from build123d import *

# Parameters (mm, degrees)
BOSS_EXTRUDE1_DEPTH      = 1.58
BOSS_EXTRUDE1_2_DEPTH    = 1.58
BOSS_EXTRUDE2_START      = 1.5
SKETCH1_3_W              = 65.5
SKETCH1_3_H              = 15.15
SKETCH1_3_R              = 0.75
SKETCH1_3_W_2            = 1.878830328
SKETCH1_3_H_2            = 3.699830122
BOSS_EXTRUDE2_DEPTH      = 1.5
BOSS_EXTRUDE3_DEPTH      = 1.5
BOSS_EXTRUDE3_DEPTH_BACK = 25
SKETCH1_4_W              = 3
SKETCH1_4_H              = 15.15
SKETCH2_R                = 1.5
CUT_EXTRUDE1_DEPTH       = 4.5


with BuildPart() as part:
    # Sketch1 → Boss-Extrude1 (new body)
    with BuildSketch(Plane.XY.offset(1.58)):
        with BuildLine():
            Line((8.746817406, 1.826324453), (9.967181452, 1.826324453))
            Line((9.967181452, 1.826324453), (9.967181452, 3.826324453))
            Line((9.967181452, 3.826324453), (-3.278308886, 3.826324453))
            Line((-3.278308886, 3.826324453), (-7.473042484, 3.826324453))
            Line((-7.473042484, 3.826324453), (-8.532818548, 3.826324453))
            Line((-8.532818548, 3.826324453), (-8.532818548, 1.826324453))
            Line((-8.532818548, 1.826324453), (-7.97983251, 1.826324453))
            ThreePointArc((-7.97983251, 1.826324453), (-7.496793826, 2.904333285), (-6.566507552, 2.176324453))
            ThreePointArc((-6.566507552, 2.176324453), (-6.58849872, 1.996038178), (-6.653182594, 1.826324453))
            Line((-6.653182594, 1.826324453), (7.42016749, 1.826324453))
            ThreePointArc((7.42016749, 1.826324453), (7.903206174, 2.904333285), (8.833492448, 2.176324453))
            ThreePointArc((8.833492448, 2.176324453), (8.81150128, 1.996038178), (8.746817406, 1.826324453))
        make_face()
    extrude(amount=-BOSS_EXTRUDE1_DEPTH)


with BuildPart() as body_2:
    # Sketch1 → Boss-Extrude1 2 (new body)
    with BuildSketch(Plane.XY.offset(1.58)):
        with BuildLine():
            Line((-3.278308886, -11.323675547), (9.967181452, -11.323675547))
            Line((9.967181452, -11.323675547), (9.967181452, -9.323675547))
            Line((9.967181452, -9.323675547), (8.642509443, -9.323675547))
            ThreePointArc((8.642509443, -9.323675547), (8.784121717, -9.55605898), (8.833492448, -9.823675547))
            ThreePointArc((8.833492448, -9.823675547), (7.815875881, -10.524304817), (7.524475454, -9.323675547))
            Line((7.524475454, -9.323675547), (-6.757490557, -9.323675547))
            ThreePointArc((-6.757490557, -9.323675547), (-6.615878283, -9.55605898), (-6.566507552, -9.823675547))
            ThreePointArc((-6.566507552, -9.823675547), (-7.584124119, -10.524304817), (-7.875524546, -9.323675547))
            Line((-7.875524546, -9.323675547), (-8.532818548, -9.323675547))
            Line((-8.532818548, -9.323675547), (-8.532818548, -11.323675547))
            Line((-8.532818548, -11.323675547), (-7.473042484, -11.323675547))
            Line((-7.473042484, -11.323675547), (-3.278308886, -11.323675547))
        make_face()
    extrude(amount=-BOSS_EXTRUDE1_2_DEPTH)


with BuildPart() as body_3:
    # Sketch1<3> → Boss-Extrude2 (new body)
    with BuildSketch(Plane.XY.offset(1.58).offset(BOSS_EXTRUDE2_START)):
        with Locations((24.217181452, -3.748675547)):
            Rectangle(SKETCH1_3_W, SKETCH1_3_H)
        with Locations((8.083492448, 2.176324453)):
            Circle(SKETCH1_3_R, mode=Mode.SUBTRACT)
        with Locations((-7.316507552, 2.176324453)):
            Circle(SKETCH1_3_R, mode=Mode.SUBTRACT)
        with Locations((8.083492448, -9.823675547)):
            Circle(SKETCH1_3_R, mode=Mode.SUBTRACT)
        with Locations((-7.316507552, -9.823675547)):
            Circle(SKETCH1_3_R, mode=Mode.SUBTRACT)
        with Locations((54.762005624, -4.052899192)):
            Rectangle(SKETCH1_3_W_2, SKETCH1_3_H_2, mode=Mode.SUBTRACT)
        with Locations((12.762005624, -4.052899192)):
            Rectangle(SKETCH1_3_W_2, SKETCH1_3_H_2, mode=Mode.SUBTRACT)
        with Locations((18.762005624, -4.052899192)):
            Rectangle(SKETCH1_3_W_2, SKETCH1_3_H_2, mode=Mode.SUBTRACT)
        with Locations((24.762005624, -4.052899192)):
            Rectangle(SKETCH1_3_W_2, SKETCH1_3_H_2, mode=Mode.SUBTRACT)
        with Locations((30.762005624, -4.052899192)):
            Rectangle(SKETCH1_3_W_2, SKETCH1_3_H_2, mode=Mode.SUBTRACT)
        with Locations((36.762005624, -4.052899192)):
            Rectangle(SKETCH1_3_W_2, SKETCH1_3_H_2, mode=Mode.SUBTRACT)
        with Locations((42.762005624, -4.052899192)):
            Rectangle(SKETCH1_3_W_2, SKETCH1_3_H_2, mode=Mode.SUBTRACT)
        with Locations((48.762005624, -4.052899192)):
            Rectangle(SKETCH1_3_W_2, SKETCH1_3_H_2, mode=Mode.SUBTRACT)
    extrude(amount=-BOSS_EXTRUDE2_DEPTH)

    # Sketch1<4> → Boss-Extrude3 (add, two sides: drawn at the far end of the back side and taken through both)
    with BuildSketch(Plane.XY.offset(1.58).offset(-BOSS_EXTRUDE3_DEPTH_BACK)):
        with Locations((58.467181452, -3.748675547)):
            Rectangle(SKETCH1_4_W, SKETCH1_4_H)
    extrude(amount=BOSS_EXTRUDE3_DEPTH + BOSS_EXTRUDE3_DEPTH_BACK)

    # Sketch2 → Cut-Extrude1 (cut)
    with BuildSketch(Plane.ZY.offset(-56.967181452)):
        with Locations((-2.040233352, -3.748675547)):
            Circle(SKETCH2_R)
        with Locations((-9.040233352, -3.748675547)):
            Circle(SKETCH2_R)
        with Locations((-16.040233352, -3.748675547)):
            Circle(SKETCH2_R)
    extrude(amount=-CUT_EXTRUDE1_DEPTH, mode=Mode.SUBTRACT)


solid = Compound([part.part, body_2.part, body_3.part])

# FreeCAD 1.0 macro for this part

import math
import FreeCAD as App
import Part
import Sketcher
Q = App.Units.Quantity

doc = App.newDocument("Part")
body = doc.addObject("PartDesign::Body", "Body")

# Sketch on XY plane
sketch1 = doc.addObject("Sketcher::SketchObject", "Sketch")
body.addObject(sketch1)
sketch1.AttachmentSupport = (doc.XY_Plane, [""])
sketch1.MapMode = "FlatFace"
sketch1.AttachmentOffset = App.Placement(App.Vector(0, 0, 1.58), App.Rotation())
sketch1.addGeometry([
    Part.LineSegment(App.Vector(8.75, 1.83, 0), App.Vector(9.97, 1.83, 0)),  # 0
    Part.LineSegment(App.Vector(9.97, 1.83, 0), App.Vector(9.97, 3.83, 0)),  # 1
    Part.LineSegment(App.Vector(9.97, 3.83, 0), App.Vector(-8.53, 3.83, 0)),  # 2
    Part.LineSegment(App.Vector(-8.53, 3.83, 0), App.Vector(-8.53, 1.83, 0)),  # 3
    Part.LineSegment(App.Vector(-8.53, 1.83, 0), App.Vector(-7.98, 1.83, 0)),  # 4
    Part.ArcOfCircle(Part.Circle(App.Vector(-7.32, 2.18, 0), App.Vector(0, 0, 1), 0.75), math.radians(0), math.radians(208)),  # 5
    Part.ArcOfCircle(Part.Circle(App.Vector(-7.32, 2.18, 0), App.Vector(0, 0, 1), 0.75), math.radians(-28), math.radians(0)),  # 6
    Part.LineSegment(App.Vector(-6.65, 1.83, 0), App.Vector(7.42, 1.83, 0)),  # 7
    Part.ArcOfCircle(Part.Circle(App.Vector(8.08, 2.18, 0), App.Vector(0, 0, 1), 0.75), math.radians(0), math.radians(208)),  # 8
    Part.ArcOfCircle(Part.Circle(App.Vector(8.08, 2.18, 0), App.Vector(0, 0, 1), 0.75), math.radians(-28), math.radians(0)),  # 9
], False)
sketch1.addConstraint([
    Sketcher.Constraint("Coincident", 0, 2, 1, 1),
    Sketcher.Constraint("Coincident", 1, 2, 2, 1),
    Sketcher.Constraint("Coincident", 2, 2, 3, 1),
    Sketcher.Constraint("Coincident", 3, 2, 4, 1),
    Sketcher.Constraint("Coincident", 4, 2, 5, 2),
    Sketcher.Constraint("Tangent", 5, 1, 6, 2),
    Sketcher.Constraint("Coincident", 6, 1, 7, 1),
    Sketcher.Constraint("Coincident", 7, 2, 8, 2),
    Sketcher.Constraint("Tangent", 8, 1, 9, 2),
    Sketcher.Constraint("Coincident", 9, 1, 0, 1),
    Sketcher.Constraint("Horizontal", 0),
    Sketcher.Constraint("Vertical", 1),
    Sketcher.Constraint("Horizontal", 2),
    Sketcher.Constraint("Vertical", 3),
    Sketcher.Constraint("Horizontal", 4),
    Sketcher.Constraint("Horizontal", 7),
    Sketcher.Constraint("Equal", 5, 6),
    Sketcher.Constraint("Equal", 6, 8),
    Sketcher.Constraint("Equal", 8, 9),
    Sketcher.Constraint("Horizontal", 6, 3, 8, 3),
    Sketcher.Constraint("Horizontal", 0, 2, 3, 2),
    Sketcher.Constraint("Horizontal", 9, 3, 5, 1),
    Sketcher.Constraint("Horizontal", 4, 2, 6, 1),
    Sketcher.Constraint("Horizontal", 5, 1, 8, 1),
    Sketcher.Constraint("DistanceY", 1, 1, 1, 2, Q("2 mm")),
    Sketcher.Constraint("Radius", 5, Q("0.75 mm")),
    Sketcher.Constraint("DistanceX", 2, 2, 2, 1, Q("18.5 mm")),
    Sketcher.Constraint("DistanceX", 6, 3, 8, 3, Q("15.4 mm")),
    Sketcher.Constraint("DistanceY", 0, 2, 9, 3, Q("0.35 mm")),
    Sketcher.Constraint("DistanceX", 0, 1, 0, 2, Q("1.220364 mm")),
    Sketcher.Constraint("DistanceX", -1, 1, 0, 2, Q("9.967181 mm")),
    Sketcher.Constraint("DistanceY", -1, 1, 5, 3, Q("2.176324 mm")),
])
pad1 = doc.addObject("PartDesign::Pad", "Pad")
body.addObject(pad1)
pad1.Profile = sketch1
pad1.Length = 1.58
pad1.Reversed = True
body2 = doc.addObject("PartDesign::Body", "Body001")

# Sketch on XY plane
sketch2 = doc.addObject("Sketcher::SketchObject", "Sketch001")
body2.addObject(sketch2)
sketch2.AttachmentSupport = (doc.getObject("XY_Plane001"), [""])
sketch2.MapMode = "FlatFace"
sketch2.AttachmentOffset = App.Placement(App.Vector(0, 0, 1.58), App.Rotation())
sketch2.addGeometry([
    Part.LineSegment(App.Vector(10, -11.3, 0), App.Vector(10, -9.3, 0)),  # 0
    Part.LineSegment(App.Vector(10, -9.3, 0), App.Vector(8.6, -9.3, 0)),  # 1
    Part.ArcOfCircle(Part.Circle(App.Vector(8.1, -9.8, 0), App.Vector(0, 0, 1), 0.8), math.radians(0), math.radians(42)),  # 2
    Part.ArcOfCircle(Part.Circle(App.Vector(8.1, -9.8, 0), App.Vector(0, 0, 1), 0.8), math.radians(138), math.radians(360)),  # 3
    Part.LineSegment(App.Vector(7.5, -9.3, 0), App.Vector(-6.8, -9.3, 0)),  # 4
    Part.ArcOfCircle(Part.Circle(App.Vector(-7.3, -9.8, 0), App.Vector(0, 0, 1), 0.8), math.radians(0), math.radians(42)),  # 5
    Part.ArcOfCircle(Part.Circle(App.Vector(-7.3, -9.8, 0), App.Vector(0, 0, 1), 0.8), math.radians(138), math.radians(360)),  # 6
    Part.LineSegment(App.Vector(-7.9, -9.3, 0), App.Vector(-8.5, -9.3, 0)),  # 7
    Part.LineSegment(App.Vector(-8.5, -9.3, 0), App.Vector(-8.5, -11.3, 0)),  # 8
    Part.LineSegment(App.Vector(-8.5, -11.3, 0), App.Vector(10, -11.3, 0)),  # 9
], False)
sketch2.addConstraint([
    Sketcher.Constraint("Coincident", 0, 2, 1, 1),
    Sketcher.Constraint("Coincident", 1, 2, 2, 2),
    Sketcher.Constraint("Tangent", 2, 1, 3, 2),
    Sketcher.Constraint("Coincident", 3, 1, 4, 1),
    Sketcher.Constraint("Coincident", 4, 2, 5, 2),
    Sketcher.Constraint("Tangent", 5, 1, 6, 2),
    Sketcher.Constraint("Coincident", 6, 1, 7, 1),
    Sketcher.Constraint("Coincident", 7, 2, 8, 1),
    Sketcher.Constraint("Coincident", 8, 2, 9, 1),
    Sketcher.Constraint("Coincident", 9, 2, 0, 1),
    Sketcher.Constraint("Vertical", 0),
    Sketcher.Constraint("Horizontal", 1),
    Sketcher.Constraint("Horizontal", 4),
    Sketcher.Constraint("Horizontal", 7),
    Sketcher.Constraint("Vertical", 8),
    Sketcher.Constraint("Horizontal", 9),
    Sketcher.Constraint("Equal", 2, 3),
    Sketcher.Constraint("Equal", 3, 5),
    Sketcher.Constraint("Equal", 5, 6),
    Sketcher.Constraint("Horizontal", 3, 3, 5, 3),
    Sketcher.Constraint("Horizontal", 6, 3, 2, 1),
    Sketcher.Constraint("Horizontal", 1, 2, 3, 1),
    Sketcher.Constraint("Horizontal", 2, 1, 5, 1),
    Sketcher.Constraint("Horizontal", 4, 2, 6, 1),
    Sketcher.Constraint("DistanceY", 0, 1, 0, 2, Q("2 mm")),
    Sketcher.Constraint("Radius", 2, Q("0.75 mm")),
    Sketcher.Constraint("DistanceX", 9, 1, 9, 2, Q("18.5 mm")),
    Sketcher.Constraint("DistanceX", 5, 3, 2, 3, Q("15.4 mm")),
    Sketcher.Constraint("DistanceY", 3, 3, 0, 2, Q("0.5 mm")),
    Sketcher.Constraint("DistanceX", 1, 2, 1, 1, Q("1.324672 mm")),
    Sketcher.Constraint("DistanceX", -1, 1, 0, 2, Q("9.967181 mm")),
    Sketcher.Constraint("DistanceY", 2, 3, -1, 1, Q("9.823676 mm")),
])
pad2 = doc.addObject("PartDesign::Pad", "Pad001")
body2.addObject(pad2)
pad2.Profile = sketch2
pad2.Length = 1.58
pad2.Reversed = True
body3 = doc.addObject("PartDesign::Body", "Body002")

# Sketch on XY plane
sketch3 = doc.addObject("Sketcher::SketchObject", "Sketch002")
body3.addObject(sketch3)
sketch3.AttachmentSupport = (doc.getObject("XY_Plane002"), [""])
sketch3.MapMode = "FlatFace"
sketch3.AttachmentOffset = App.Placement(App.Vector(0, 0, 3.08), App.Rotation())
sketch3.addGeometry([
    Part.LineSegment(App.Vector(-8.5, 3.8, 0), App.Vector(-8.5, -11.3, 0)),  # 0
    Part.LineSegment(App.Vector(-8.5, -11.3, 0), App.Vector(57, -11.3, 0)),  # 1
    Part.LineSegment(App.Vector(57, -11.3, 0), App.Vector(57, 3.8, 0)),  # 2
    Part.LineSegment(App.Vector(57, 3.8, 0), App.Vector(-8.5, 3.8, 0)),  # 3
    Part.Circle(App.Vector(-7.3, -9.8, 0), App.Vector(0, 0, 1), 0.8),  # 4
    Part.Circle(App.Vector(8.1, -9.8, 0), App.Vector(0, 0, 1), 0.8),  # 5
    Part.LineSegment(App.Vector(13.7, -5.9, 0), App.Vector(11.8, -5.9, 0)),  # 6
    Part.LineSegment(App.Vector(11.8, -5.9, 0), App.Vector(11.8, -2.2, 0)),  # 7
    Part.LineSegment(App.Vector(11.8, -2.2, 0), App.Vector(13.7, -2.2, 0)),  # 8
    Part.LineSegment(App.Vector(13.7, -2.2, 0), App.Vector(13.7, -5.9, 0)),  # 9
    Part.LineSegment(App.Vector(19.7, -5.9, 0), App.Vector(17.8, -5.9, 0)),  # 10
    Part.LineSegment(App.Vector(17.8, -5.9, 0), App.Vector(17.8, -2.2, 0)),  # 11
    Part.LineSegment(App.Vector(17.8, -2.2, 0), App.Vector(19.7, -2.2, 0)),  # 12
    Part.LineSegment(App.Vector(19.7, -2.2, 0), App.Vector(19.7, -5.9, 0)),  # 13
    Part.LineSegment(App.Vector(25.7, -5.9, 0), App.Vector(23.8, -5.9, 0)),  # 14
    Part.LineSegment(App.Vector(23.8, -5.9, 0), App.Vector(23.8, -2.2, 0)),  # 15
    Part.LineSegment(App.Vector(23.8, -2.2, 0), App.Vector(25.7, -2.2, 0)),  # 16
    Part.LineSegment(App.Vector(25.7, -2.2, 0), App.Vector(25.7, -5.9, 0)),  # 17
    Part.LineSegment(App.Vector(31.7, -5.9, 0), App.Vector(29.8, -5.9, 0)),  # 18
    Part.LineSegment(App.Vector(29.8, -5.9, 0), App.Vector(29.8, -2.2, 0)),  # 19
    Part.LineSegment(App.Vector(29.8, -2.2, 0), App.Vector(31.7, -2.2, 0)),  # 20
    Part.LineSegment(App.Vector(31.7, -2.2, 0), App.Vector(31.7, -5.9, 0)),  # 21
    Part.LineSegment(App.Vector(37.7, -5.9, 0), App.Vector(35.8, -5.9, 0)),  # 22
    Part.LineSegment(App.Vector(35.8, -5.9, 0), App.Vector(35.8, -2.2, 0)),  # 23
    Part.LineSegment(App.Vector(35.8, -2.2, 0), App.Vector(37.7, -2.2, 0)),  # 24
    Part.LineSegment(App.Vector(37.7, -2.2, 0), App.Vector(37.7, -5.9, 0)),  # 25
    Part.LineSegment(App.Vector(43.7, -5.9, 0), App.Vector(41.8, -5.9, 0)),  # 26
    Part.LineSegment(App.Vector(41.8, -5.9, 0), App.Vector(41.8, -2.2, 0)),  # 27
    Part.LineSegment(App.Vector(41.8, -2.2, 0), App.Vector(43.7, -2.2, 0)),  # 28
    Part.LineSegment(App.Vector(43.7, -2.2, 0), App.Vector(43.7, -5.9, 0)),  # 29
    Part.LineSegment(App.Vector(49.7, -5.9, 0), App.Vector(47.8, -5.9, 0)),  # 30
    Part.LineSegment(App.Vector(47.8, -5.9, 0), App.Vector(47.8, -2.2, 0)),  # 31
    Part.LineSegment(App.Vector(47.8, -2.2, 0), App.Vector(49.7, -2.2, 0)),  # 32
    Part.LineSegment(App.Vector(49.7, -2.2, 0), App.Vector(49.7, -5.9, 0)),  # 33
    Part.LineSegment(App.Vector(55.7, -5.9, 0), App.Vector(53.8, -5.9, 0)),  # 34
    Part.LineSegment(App.Vector(53.8, -5.9, 0), App.Vector(53.8, -2.2, 0)),  # 35
    Part.LineSegment(App.Vector(53.8, -2.2, 0), App.Vector(55.7, -2.2, 0)),  # 36
    Part.LineSegment(App.Vector(55.7, -2.2, 0), App.Vector(55.7, -5.9, 0)),  # 37
    Part.Circle(App.Vector(-7.3, 2.2, 0), App.Vector(0, 0, 1), 0.8),  # 38
    Part.Circle(App.Vector(8.1, 2.2, 0), App.Vector(0, 0, 1), 0.8),  # 39
], False)
sketch3.addConstraint([
    Sketcher.Constraint("Coincident", 0, 2, 1, 1),
    Sketcher.Constraint("Coincident", 1, 2, 2, 1),
    Sketcher.Constraint("Coincident", 2, 2, 3, 1),
    Sketcher.Constraint("Coincident", 3, 2, 0, 1),
    Sketcher.Constraint("Coincident", 6, 2, 7, 1),
    Sketcher.Constraint("Coincident", 7, 2, 8, 1),
    Sketcher.Constraint("Coincident", 8, 2, 9, 1),
    Sketcher.Constraint("Coincident", 9, 2, 6, 1),
    Sketcher.Constraint("Coincident", 10, 2, 11, 1),
    Sketcher.Constraint("Coincident", 11, 2, 12, 1),
    Sketcher.Constraint("Coincident", 12, 2, 13, 1),
    Sketcher.Constraint("Coincident", 13, 2, 10, 1),
    Sketcher.Constraint("Coincident", 14, 2, 15, 1),
    Sketcher.Constraint("Coincident", 15, 2, 16, 1),
    Sketcher.Constraint("Coincident", 16, 2, 17, 1),
    Sketcher.Constraint("Coincident", 17, 2, 14, 1),
    Sketcher.Constraint("Coincident", 18, 2, 19, 1),
    Sketcher.Constraint("Coincident", 19, 2, 20, 1),
    Sketcher.Constraint("Coincident", 20, 2, 21, 1),
    Sketcher.Constraint("Coincident", 21, 2, 18, 1),
    Sketcher.Constraint("Coincident", 22, 2, 23, 1),
    Sketcher.Constraint("Coincident", 23, 2, 24, 1),
    Sketcher.Constraint("Coincident", 24, 2, 25, 1),
    Sketcher.Constraint("Coincident", 25, 2, 22, 1),
    Sketcher.Constraint("Coincident", 26, 2, 27, 1),
    Sketcher.Constraint("Coincident", 27, 2, 28, 1),
    Sketcher.Constraint("Coincident", 28, 2, 29, 1),
    Sketcher.Constraint("Coincident", 29, 2, 26, 1),
    Sketcher.Constraint("Coincident", 30, 2, 31, 1),
    Sketcher.Constraint("Coincident", 31, 2, 32, 1),
    Sketcher.Constraint("Coincident", 32, 2, 33, 1),
    Sketcher.Constraint("Coincident", 33, 2, 30, 1),
    Sketcher.Constraint("Coincident", 34, 2, 35, 1),
    Sketcher.Constraint("Coincident", 35, 2, 36, 1),
    Sketcher.Constraint("Coincident", 36, 2, 37, 1),
    Sketcher.Constraint("Coincident", 37, 2, 34, 1),
    Sketcher.Constraint("Vertical", 0),
    Sketcher.Constraint("Horizontal", 1),
    Sketcher.Constraint("Vertical", 2),
    Sketcher.Constraint("Horizontal", 3),
    Sketcher.Constraint("Horizontal", 6),
    Sketcher.Constraint("Vertical", 7),
    Sketcher.Constraint("Horizontal", 8),
    Sketcher.Constraint("Vertical", 9),
    Sketcher.Constraint("Horizontal", 10),
    Sketcher.Constraint("Vertical", 11),
    Sketcher.Constraint("Horizontal", 12),
    Sketcher.Constraint("Vertical", 13),
    Sketcher.Constraint("Horizontal", 14),
    Sketcher.Constraint("Vertical", 15),
    Sketcher.Constraint("Horizontal", 16),
    Sketcher.Constraint("Vertical", 17),
    Sketcher.Constraint("Horizontal", 18),
    Sketcher.Constraint("Vertical", 19),
    Sketcher.Constraint("Horizontal", 20),
    Sketcher.Constraint("Vertical", 21),
    Sketcher.Constraint("Horizontal", 22),
    Sketcher.Constraint("Vertical", 23),
    Sketcher.Constraint("Horizontal", 24),
    Sketcher.Constraint("Vertical", 25),
    Sketcher.Constraint("Horizontal", 26),
    Sketcher.Constraint("Vertical", 27),
    Sketcher.Constraint("Horizontal", 28),
    Sketcher.Constraint("Vertical", 29),
    Sketcher.Constraint("Horizontal", 30),
    Sketcher.Constraint("Vertical", 31),
    Sketcher.Constraint("Horizontal", 32),
    Sketcher.Constraint("Vertical", 33),
    Sketcher.Constraint("Horizontal", 34),
    Sketcher.Constraint("Vertical", 35),
    Sketcher.Constraint("Horizontal", 36),
    Sketcher.Constraint("Vertical", 37),
    Sketcher.Constraint("Equal", 4, 5),
    Sketcher.Constraint("Equal", 5, 38),
    Sketcher.Constraint("Equal", 38, 39),
    Sketcher.Constraint("Horizontal", 4, 3, 5, 3),
    Sketcher.Constraint("Horizontal", 38, 3, 39, 3),
    Sketcher.Constraint("Horizontal", 9, 2, 10, 2),
    Sketcher.Constraint("Horizontal", 8, 2, 11, 2),
    Sketcher.Constraint("Horizontal", 13, 2, 14, 2),
    Sketcher.Constraint("Horizontal", 12, 2, 15, 2),
    Sketcher.Constraint("Horizontal", 17, 2, 18, 2),
    Sketcher.Constraint("Horizontal", 16, 2, 19, 2),
    Sketcher.Constraint("Horizontal", 21, 2, 22, 2),
    Sketcher.Constraint("Horizontal", 20, 2, 23, 2),
    Sketcher.Constraint("Horizontal", 25, 2, 26, 2),
    Sketcher.Constraint("Horizontal", 24, 2, 27, 2),
    Sketcher.Constraint("Horizontal", 29, 2, 30, 2),
    Sketcher.Constraint("Horizontal", 28, 2, 31, 2),
    Sketcher.Constraint("Horizontal", 33, 2, 34, 2),
    Sketcher.Constraint("Horizontal", 32, 2, 35, 2),
    Sketcher.Constraint("Vertical", 4, 3, 38, 3),
    Sketcher.Constraint("Vertical", 5, 3, 39, 3),
    Sketcher.Constraint("Equal", 8, 10),
    Sketcher.Constraint("Equal", 12, 14),
    Sketcher.Constraint("Equal", 16, 18),
    Sketcher.Constraint("Equal", 20, 22),
    Sketcher.Constraint("Equal", 24, 26),
    Sketcher.Constraint("Equal", 28, 30),
    Sketcher.Constraint("Equal", 32, 34),
    Sketcher.Constraint("Diameter", 4, Q("1.5 mm")),
    Sketcher.Constraint("DistanceX", 1, 1, 1, 2, Q("65.5 mm")),
    Sketcher.Constraint("DistanceY", 4, 3, 38, 3, Q("12 mm")),
    Sketcher.Constraint("DistanceX", 6, 2, 10, 2, Q("6 mm")),
    Sketcher.Constraint("DistanceX", 10, 2, 14, 2, Q("6 mm")),
    Sketcher.Constraint("DistanceX", 14, 2, 18, 2, Q("6 mm")),
    Sketcher.Constraint("DistanceX", 18, 2, 22, 2, Q("6 mm")),
    Sketcher.Constraint("DistanceX", 22, 2, 26, 2, Q("6 mm")),
    Sketcher.Constraint("DistanceX", 26, 2, 30, 2, Q("6 mm")),
    Sketcher.Constraint("DistanceX", 30, 2, 34, 2, Q("6 mm")),
    Sketcher.Constraint("DistanceY", 0, 2, 0, 1, Q("15.15 mm")),
    Sketcher.Constraint("DistanceX", 4, 3, 5, 3, Q("15.4 mm")),
    Sketcher.Constraint("DistanceY", 0, 2, 4, 3, Q("1.5 mm")),
    Sketcher.Constraint("DistanceX", 6, 2, 6, 1, Q("1.87883 mm")),
    Sketcher.Constraint("DistanceY", 7, 1, 7, 2, Q("3.69983 mm")),
    Sketcher.Constraint("DistanceX", 5, 3, 6, 2, Q("3.739098 mm")),
    Sketcher.Constraint("DistanceX", 0, 2, -1, 1, Q("8.532819 mm")),
    Sketcher.Constraint("DistanceX", -1, 1, 6, 2, Q("11.82259 mm")),
    Sketcher.Constraint("DistanceY", 5, 3, 6, 2, Q("3.920861 mm")),
    Sketcher.Constraint("DistanceY", 4, 3, -1, 1, Q("9.823676 mm")),
])
pad3 = doc.addObject("PartDesign::Pad", "Pad002")
body3.addObject(pad3)
pad3.Profile = sketch3
pad3.Length = 1.5
pad3.Reversed = True

# Sketch on XY plane
sketch4 = doc.addObject("Sketcher::SketchObject", "Sketch003")
body3.addObject(sketch4)
sketch4.AttachmentSupport = (doc.getObject("XY_Plane002"), [""])
sketch4.MapMode = "FlatFace"
sketch4.AttachmentOffset = App.Placement(App.Vector(0, 0, 1.58), App.Rotation())
sketch4.addGeometry([
    Part.LineSegment(App.Vector(57, 3.8, 0), App.Vector(57, -11.3, 0)),
    Part.LineSegment(App.Vector(57, -11.3, 0), App.Vector(60, -11.3, 0)),
    Part.LineSegment(App.Vector(60, -11.3, 0), App.Vector(60, 3.8, 0)),
    Part.LineSegment(App.Vector(60, 3.8, 0), App.Vector(57, 3.8, 0)),
], False)
sketch4.addConstraint([
    Sketcher.Constraint("Coincident", 0, 2, 1, 1),
    Sketcher.Constraint("Coincident", 1, 2, 2, 1),
    Sketcher.Constraint("Coincident", 2, 2, 3, 1),
    Sketcher.Constraint("Coincident", 3, 2, 0, 1),
    Sketcher.Constraint("Vertical", 0),
    Sketcher.Constraint("Horizontal", 1),
    Sketcher.Constraint("Vertical", 2),
    Sketcher.Constraint("Horizontal", 3),
    Sketcher.Constraint("DistanceX", 1, 1, 1, 2, Q("3 mm")),
    Sketcher.Constraint("DistanceY", 0, 2, 0, 1, Q("15.15 mm")),
    Sketcher.Constraint("DistanceX", -1, 1, 0, 2, Q("56.967181 mm")),
    Sketcher.Constraint("DistanceY", 0, 2, -1, 1, Q("11.323676 mm")),
])
pad4 = doc.addObject("PartDesign::Pad", "Pad003")
body3.addObject(pad4)
pad4.Profile = sketch4
pad4.Type = "TwoLengths"
pad4.Length = 1.5
pad4.Length2 = 25

# Sketch on YZ plane
sketch5 = doc.addObject("Sketcher::SketchObject", "Sketch004")
body3.addObject(sketch5)
sketch5.AttachmentSupport = (doc.getObject("YZ_Plane002"), [""])
sketch5.MapMode = "FlatFace"
sketch5.AttachmentOffset = App.Placement(App.Vector(0, 0, 56.967181), App.Rotation())
sketch5.addGeometry([
    Part.Circle(App.Vector(-3.7, -2, 0), App.Vector(0, 0, 1), 1.5),
    Part.Circle(App.Vector(-3.7, -9, 0), App.Vector(0, 0, 1), 1.5),
    Part.Circle(App.Vector(-3.7, -16, 0), App.Vector(0, 0, 1), 1.5),
], False)
sketch5.addConstraint([
    Sketcher.Constraint("Equal", 0, 1),
    Sketcher.Constraint("Equal", 1, 2),
    Sketcher.Constraint("Vertical", 0, 3, 1, 3),
    Sketcher.Constraint("Vertical", 1, 3, 2, 3),
    Sketcher.Constraint("Diameter", 0, Q("3 mm")),
    Sketcher.Constraint("DistanceY", 1, 3, 0, 3, Q("7 mm")),
    Sketcher.Constraint("DistanceY", 2, 3, 1, 3, Q("7 mm")),
    Sketcher.Constraint("DistanceX", 0, 3, -1, 1, Q("3.748676 mm")),
    Sketcher.Constraint("DistanceY", 0, 3, -1, 1, Q("2.040233 mm")),
])
pocket1 = doc.addObject("PartDesign::Pocket", "Pocket")
body3.addObject(pocket1)
pocket1.Profile = sketch5
pocket1.Length = 4.5
pocket1.Reversed = True

doc.recompute()
